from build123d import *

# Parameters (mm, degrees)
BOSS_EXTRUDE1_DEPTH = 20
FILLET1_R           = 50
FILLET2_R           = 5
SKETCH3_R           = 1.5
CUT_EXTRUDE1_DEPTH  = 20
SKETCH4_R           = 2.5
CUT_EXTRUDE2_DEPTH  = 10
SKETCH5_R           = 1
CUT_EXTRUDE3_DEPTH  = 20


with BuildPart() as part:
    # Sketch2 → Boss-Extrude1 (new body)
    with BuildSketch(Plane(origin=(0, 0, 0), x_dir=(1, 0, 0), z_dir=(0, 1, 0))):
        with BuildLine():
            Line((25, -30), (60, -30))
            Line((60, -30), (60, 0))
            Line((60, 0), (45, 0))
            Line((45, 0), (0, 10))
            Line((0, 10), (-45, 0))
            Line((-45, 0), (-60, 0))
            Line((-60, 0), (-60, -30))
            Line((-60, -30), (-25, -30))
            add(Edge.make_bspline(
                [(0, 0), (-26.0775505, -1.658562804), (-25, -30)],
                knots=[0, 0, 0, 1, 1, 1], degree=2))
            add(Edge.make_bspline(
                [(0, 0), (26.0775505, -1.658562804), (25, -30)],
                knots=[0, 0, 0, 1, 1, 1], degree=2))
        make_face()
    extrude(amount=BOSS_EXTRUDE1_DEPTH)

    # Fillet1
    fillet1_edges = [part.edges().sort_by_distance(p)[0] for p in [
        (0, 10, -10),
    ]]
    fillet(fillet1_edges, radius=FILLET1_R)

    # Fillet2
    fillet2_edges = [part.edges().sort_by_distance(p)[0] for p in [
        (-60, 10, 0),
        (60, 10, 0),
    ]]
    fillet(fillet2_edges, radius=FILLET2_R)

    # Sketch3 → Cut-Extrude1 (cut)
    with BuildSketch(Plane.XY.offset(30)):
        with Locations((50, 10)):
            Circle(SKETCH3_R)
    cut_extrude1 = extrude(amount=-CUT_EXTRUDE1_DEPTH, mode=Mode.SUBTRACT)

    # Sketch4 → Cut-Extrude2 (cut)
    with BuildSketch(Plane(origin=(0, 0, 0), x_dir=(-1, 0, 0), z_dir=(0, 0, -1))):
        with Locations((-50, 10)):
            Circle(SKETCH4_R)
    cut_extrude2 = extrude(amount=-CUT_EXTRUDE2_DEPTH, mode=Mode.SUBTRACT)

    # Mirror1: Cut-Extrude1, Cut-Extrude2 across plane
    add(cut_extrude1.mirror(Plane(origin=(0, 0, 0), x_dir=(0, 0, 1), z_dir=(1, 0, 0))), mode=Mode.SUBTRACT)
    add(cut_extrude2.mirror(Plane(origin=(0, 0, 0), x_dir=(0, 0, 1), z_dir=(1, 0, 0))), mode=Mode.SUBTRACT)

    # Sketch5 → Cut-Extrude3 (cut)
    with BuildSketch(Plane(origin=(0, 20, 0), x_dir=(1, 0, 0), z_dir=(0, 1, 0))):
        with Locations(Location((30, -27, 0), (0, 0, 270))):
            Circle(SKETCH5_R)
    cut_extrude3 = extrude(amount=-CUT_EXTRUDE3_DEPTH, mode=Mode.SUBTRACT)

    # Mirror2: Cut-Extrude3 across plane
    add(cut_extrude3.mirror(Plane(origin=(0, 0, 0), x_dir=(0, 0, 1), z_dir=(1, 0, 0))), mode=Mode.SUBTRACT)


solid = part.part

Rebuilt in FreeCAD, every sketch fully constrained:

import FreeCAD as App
import Part
import Sketcher
from FreeCAD import Vector
Q = App.Units.Quantity


def edges_at(feature, points):
    """Names of the edges that pass closest to the given points."""
    edges = feature.Shape.Edges
    near = lambda p: min(range(len(edges)), key=lambda i: edges[i].distToShape(Part.Vertex(*p))[0])
    return sorted({f"Edge{near(p) + 1}" for p in points})

doc = App.newDocument("Part")
body = doc.addObject("PartDesign::Body", "Body")

sketch1 = body.newObject("Sketcher::SketchObject", "Sketch")
sketch1.AttachmentSupport = (doc.getObject("XZ_Plane"), [""])
sketch1.MapMode = "FlatFace"
sketch1.addGeometry([
    Part.LineSegment(Vector(25, 30, 0), Vector(60, 30, 0)),
    Part.LineSegment(Vector(60, 30, 0), Vector(60, 0, 0)),
    Part.LineSegment(Vector(60, 0, 0), Vector(45, 0, 0)),
    Part.LineSegment(Vector(45, 0, 0), Vector(0, -10, 0)),
    Part.LineSegment(Vector(0, -10, 0), Vector(-45, 0, 0)),
    Part.LineSegment(Vector(-45, 0, 0), Vector(-60, 0, 0)),
    Part.LineSegment(Vector(-60, 0, 0), Vector(-60, 30, 0)),
    Part.LineSegment(Vector(-60, 30, 0), Vector(-25, 30, 0)),
    Part.BSplineCurve([Vector(0, 0, 0), Vector(-26.077551, 1.658563, 0), Vector(-25, 30, 0)], [3, 3], [0, 1], False, 2, [1, 1, 1], False),
    Part.BSplineCurve([Vector(0, 0, 0), Vector(26.077551, 1.658563, 0), Vector(25, 30, 0)], [3, 3], [0, 1], False, 2, [1, 1, 1], False),
], False)
sketch1.addConstraint([
    Sketcher.Constraint("Block", 8),
    Sketcher.Constraint("Block", 9),
    Sketcher.Constraint("Coincident", 0, 2, 1, 1),
    Sketcher.Constraint("Coincident", 1, 2, 2, 1),
    Sketcher.Constraint("Coincident", 2, 2, 3, 1),
    Sketcher.Constraint("Coincident", 3, 2, 4, 1),
    Sketcher.Constraint("Coincident", 4, 2, 5, 1),
    Sketcher.Constraint("Coincident", 5, 2, 6, 1),
    Sketcher.Constraint("Coincident", 6, 2, 7, 1),
    Sketcher.Constraint("Coincident", 7, 2, 8, 2),
    Sketcher.Constraint("Coincident", 9, 2, 0, 1),
    Sketcher.Constraint("Horizontal", 0),
    Sketcher.Constraint("Vertical", 1),
    Sketcher.Constraint("Horizontal", 2),
    Sketcher.Constraint("Horizontal", 5),
    Sketcher.Constraint("Vertical", 6),
    Sketcher.Constraint("Horizontal", 7),
    Sketcher.Constraint("Symmetric", 2, 2, 4, 2, -1, 1),
    Sketcher.Constraint("Symmetric", 1, 2, 5, 2, -2),
    Sketcher.Constraint("PointOnObject", 3, 2, -2),
    Sketcher.Constraint("DistanceX", 0, 1, 0, 2, Q("35 mm")),
    Sketcher.Constraint("DistanceX", 2, 2, 2, 1, Q("15 mm")),
    Sketcher.Constraint("DistanceY", 3, 2, -1, 1, Q("10 mm")),
])
pad1 = body.newObject("PartDesign::Pad", "Pad")
pad1.Profile = sketch1
pad1.Length = 20
pad1.Reversed = True
doc.recompute()

fillet = body.newObject("PartDesign::Fillet", "Fillet")
fillet.Base = (pad1, edges_at(pad1, [(0, 10, -10)]))
fillet.Radius = 50
doc.recompute()

fillet2 = body.newObject("PartDesign::Fillet", "Fillet001")
fillet2.Base = (fillet, edges_at(fillet, [(-60, 10, 0), (60, 10, 0)]))
fillet2.Radius = 5

sketch2 = body.newObject("Sketcher::SketchObject", "Sketch001")
sketch2.AttachmentSupport = (doc.getObject("XY_Plane"), [""])
sketch2.MapMode = "FlatFace"
sketch2.AttachmentOffset = App.Placement(Vector(0, 0, 30), App.Rotation())
sketch2.addGeometry(Part.Circle(Vector(50, 10, 0), Vector(0, 0, 1), 1.5), False)
sketch2.addConstraint([
    Sketcher.Constraint("Diameter", 0, Q("3 mm")),
    Sketcher.Constraint("DistanceX", -1, 1, 0, 3, Q("50 mm")),
    Sketcher.Constraint("DistanceY", -1, 1, 0, 3, Q("10 mm")),
])
pocket1 = body.newObject("PartDesign::Pocket", "Pocket")
pocket1.Profile = sketch2
pocket1.Length = 20

sketch3 = body.newObject("Sketcher::SketchObject", "Sketch002")
sketch3.AttachmentSupport = (doc.getObject("XY_Plane"), [""])
sketch3.MapMode = "FlatFace"
sketch3.addGeometry(Part.Circle(Vector(50, 10, 0), Vector(0, 0, 1), 2.5), False)
sketch3.addConstraint([
    Sketcher.Constraint("Diameter", 0, Q("5 mm")),
    Sketcher.Constraint("DistanceX", -1, 1, 0, 3, Q("50 mm")),
    Sketcher.Constraint("DistanceY", -1, 1, 0, 3, Q("10 mm")),
])
pocket2 = body.newObject("PartDesign::Pocket", "Pocket001")
pocket2.Profile = sketch3
pocket2.Length = 10
pocket2.Reversed = True
doc.recompute()

mirrored = body.newObject("PartDesign::Mirrored", "Mirrored")
mirrored.Originals = [pocket1, pocket2]
mirrored.MirrorPlane = (doc.getObject("YZ_Plane"), [""])
body.Tip = mirrored

sketch4 = body.newObject("Sketcher::SketchObject", "Sketch003")
sketch4.AttachmentSupport = (doc.getObject("XZ_Plane"), [""])
sketch4.MapMode = "FlatFace"
sketch4.AttachmentOffset = App.Placement(Vector(0, 0, -20), App.Rotation())
sketch4.addGeometry(Part.Circle(Vector(30, 27, 0), Vector(0, 0, 1), 1), False)
sketch4.addConstraint([
    Sketcher.Constraint("Diameter", 0, Q("2 mm")),
    Sketcher.Constraint("DistanceX", -1, 1, 0, 3, Q("30 mm")),
    Sketcher.Constraint("DistanceY", -1, 1, 0, 3, Q("27 mm")),
])
pocket3 = body.newObject("PartDesign::Pocket", "Pocket002")
pocket3.Profile = sketch4
pocket3.Length = 20
pocket3.Reversed = True
doc.recompute()

mirrored2 = body.newObject("PartDesign::Mirrored", "Mirrored001")
mirrored2.Originals = [pocket3]
mirrored2.MirrorPlane = (doc.getObject("YZ_Plane"), [""])
body.Tip = mirrored2

doc.recompute()
